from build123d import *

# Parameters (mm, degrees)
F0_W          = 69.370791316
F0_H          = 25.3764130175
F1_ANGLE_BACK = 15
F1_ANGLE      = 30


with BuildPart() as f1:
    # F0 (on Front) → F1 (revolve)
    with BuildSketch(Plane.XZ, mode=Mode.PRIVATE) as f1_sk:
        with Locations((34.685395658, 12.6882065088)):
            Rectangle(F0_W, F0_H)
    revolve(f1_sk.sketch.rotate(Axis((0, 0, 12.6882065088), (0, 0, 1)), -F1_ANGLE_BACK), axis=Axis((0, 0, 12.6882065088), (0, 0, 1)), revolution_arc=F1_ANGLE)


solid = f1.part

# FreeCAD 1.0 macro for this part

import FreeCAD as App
import Part
import Sketcher
from FreeCAD import Vector

doc = App.newDocument("Part")
body = doc.addObject("PartDesign::Body", "Body")

# Sketch on an angled plane
sketch1 = doc.addObject("Sketcher::SketchObject", "Sketch")
body.addObject(sketch1)
sketch1.Placement = App.Placement(Vector(0, 0, 0), App.Rotation(Vector(0.965925826, -0.258819045, 0), Vector(0, 0, 0.999999999), Vector(-0.258819045, -0.965925826, 0), "ZXY"))
sketch1.addGeometry(Part.LineSegment(Vector(0, 25, 0), Vector(0, 0, 0)), False)
sketch1.addGeometry(Part.LineSegment(Vector(0, 0, 0), Vector(69, 0, 0)), False)
sketch1.addGeometry(Part.LineSegment(Vector(69, 0, 0), Vector(69, 25, 0)), False)
sketch1.addGeometry(Part.LineSegment(Vector(69, 25, 0), Vector(0, 25, 0)), False)
sketch1.addConstraint(Sketcher.Constraint("Coincident", 0, 2, 1, 1))
sketch1.addConstraint(Sketcher.Constraint("Coincident", 1, 2, 2, 1))
sketch1.addConstraint(Sketcher.Constraint("Coincident", 2, 2, 3, 1))
sketch1.addConstraint(Sketcher.Constraint("Coincident", 3, 2, 0, 1))
sketch1.addConstraint(Sketcher.Constraint("Vertical", 0))
sketch1.addConstraint(Sketcher.Constraint("Horizontal", 1))
sketch1.addConstraint(Sketcher.Constraint("Vertical", 2))
sketch1.addConstraint(Sketcher.Constraint("Horizontal", 3))
sketch1.addConstraint(Sketcher.Constraint("Coincident", 0, 2, -1, 1))
sketch1.addConstraint(Sketcher.Constraint("DistanceX", 1, 1, 1, 2, 69.370791))
sketch1.addConstraint(Sketcher.Constraint("DistanceY", 0, 2, 0, 1, 25.376413))
revolution = doc.addObject("PartDesign::Revolution", "Revolution")
body.addObject(revolution)
revolution.Profile = sketch1
revolution.ReferenceAxis = (sketch1, ["V_Axis"])
revolution.Angle = 30

doc.recompute()
